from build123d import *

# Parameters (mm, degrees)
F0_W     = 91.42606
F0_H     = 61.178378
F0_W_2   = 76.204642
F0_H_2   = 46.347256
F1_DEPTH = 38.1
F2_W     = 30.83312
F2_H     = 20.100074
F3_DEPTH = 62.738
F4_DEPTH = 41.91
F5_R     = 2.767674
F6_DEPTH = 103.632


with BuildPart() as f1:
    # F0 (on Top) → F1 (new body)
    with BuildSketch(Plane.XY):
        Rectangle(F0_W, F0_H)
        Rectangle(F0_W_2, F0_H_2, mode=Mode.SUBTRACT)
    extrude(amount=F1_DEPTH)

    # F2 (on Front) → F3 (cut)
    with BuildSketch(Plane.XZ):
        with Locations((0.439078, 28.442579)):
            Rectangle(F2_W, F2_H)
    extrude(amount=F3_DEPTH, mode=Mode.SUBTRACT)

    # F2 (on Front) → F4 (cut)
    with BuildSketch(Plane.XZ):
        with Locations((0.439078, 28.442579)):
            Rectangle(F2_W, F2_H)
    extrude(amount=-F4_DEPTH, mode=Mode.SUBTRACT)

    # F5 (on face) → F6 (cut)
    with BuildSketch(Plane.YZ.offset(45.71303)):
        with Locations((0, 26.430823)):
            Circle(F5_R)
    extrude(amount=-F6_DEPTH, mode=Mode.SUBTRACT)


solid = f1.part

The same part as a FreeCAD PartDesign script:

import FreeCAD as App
import Part
import Sketcher
from FreeCAD import Vector
Q = App.Units.Quantity

doc = App.newDocument("Part")
body = doc.addObject("PartDesign::Body", "Body")

sketch1 = body.newObject("Sketcher::SketchObject", "Sketch")
sketch1.AttachmentSupport = (doc.getObject("XY_Plane"), [""])
sketch1.MapMode = "FlatFace"
sketch1.addGeometry([
    Part.LineSegment(Vector(-45.71303, 30.589189, 0), Vector(-45.71303, -30.589189, 0)),
    Part.LineSegment(Vector(-45.71303, -30.589189, 0), Vector(45.71303, -30.589189, 0)),
    Part.LineSegment(Vector(45.71303, -30.589189, 0), Vector(45.71303, 30.589189, 0)),
    Part.LineSegment(Vector(45.71303, 30.589189, 0), Vector(-45.71303, 30.589189, 0)),
    Part.LineSegment(Vector(38.102321, -23.173628, 0), Vector(-38.102321, -23.173628, 0)),
    Part.LineSegment(Vector(-38.102321, -23.173628, 0), Vector(-38.102321, 23.173628, 0)),
    Part.LineSegment(Vector(-38.102321, 23.173628, 0), Vector(38.102321, 23.173628, 0)),
    Part.LineSegment(Vector(38.102321, 23.173628, 0), Vector(38.102321, -23.173628, 0)),
], False)
sketch1.addConstraint([
    Sketcher.Constraint("Coincident", 0, 2, 1, 1),
    Sketcher.Constraint("Coincident", 1, 2, 2, 1),
    Sketcher.Constraint("Coincident", 2, 2, 3, 1),
    Sketcher.Constraint("Coincident", 3, 2, 0, 1),
    Sketcher.Constraint("Coincident", 4, 2, 5, 1),
    Sketcher.Constraint("Coincident", 5, 2, 6, 1),
    Sketcher.Constraint("Coincident", 6, 2, 7, 1),
    Sketcher.Constraint("Coincident", 7, 2, 4, 1),
    Sketcher.Constraint("Vertical", 0),
    Sketcher.Constraint("Horizontal", 1),
    Sketcher.Constraint("Vertical", 2),
    Sketcher.Constraint("Horizontal", 3),
    Sketcher.Constraint("Horizontal", 4),
    Sketcher.Constraint("Vertical", 5),
    Sketcher.Constraint("Horizontal", 6),
    Sketcher.Constraint("Vertical", 7),
    Sketcher.Constraint("Symmetric", 0, 2, 2, 2, -1, 1),
    Sketcher.Constraint("Symmetric", 4, 2, 6, 2, -1, 1),
    Sketcher.Constraint("DistanceX", 1, 1, 1, 2, 91.42606),
    Sketcher.Constraint("DistanceY", 0, 2, 0, 1, 61.178378),
    Sketcher.Constraint("DistanceX", 4, 2, 4, 1, 76.204642),
    Sketcher.Constraint("DistanceY", 5, 1, 5, 2, 46.347256),
])
pad1 = body.newObject("PartDesign::Pad", "Pad")
pad1.Profile = sketch1
pad1.Length = Q("1.5 in")

sketch2 = body.newObject("Sketcher::SketchObject", "Sketch001")
sketch2.AttachmentSupport = (doc.getObject("XZ_Plane"), [""])
sketch2.MapMode = "FlatFace"
sketch2.addGeometry([
    Part.LineSegment(Vector(-14.977482, 38.492616, 0), Vector(-14.977482, 18.392542, 0)),
    Part.LineSegment(Vector(-14.977482, 18.392542, 0), Vector(15.855638, 18.392542, 0)),
    Part.LineSegment(Vector(15.855638, 18.392542, 0), Vector(15.855638, 38.492616, 0)),
    Part.LineSegment(Vector(15.855638, 38.492616, 0), Vector(-14.977482, 38.492616, 0)),
], False)
sketch2.addConstraint([
    Sketcher.Constraint("Coincident", 0, 2, 1, 1),
    Sketcher.Constraint("Coincident", 1, 2, 2, 1),
    Sketcher.Constraint("Coincident", 2, 2, 3, 1),
    Sketcher.Constraint("Coincident", 3, 2, 0, 1),
    Sketcher.Constraint("Vertical", 0),
    Sketcher.Constraint("Horizontal", 1),
    Sketcher.Constraint("Vertical", 2),
    Sketcher.Constraint("Horizontal", 3),
    Sketcher.Constraint("DistanceX", 1, 1, 1, 2, 30.83312),
    Sketcher.Constraint("DistanceY", 0, 2, 0, 1, 20.100074),
    Sketcher.Constraint("DistanceY", -1, 1, 0, 2, 18.392542),
    Sketcher.Constraint("DistanceX", -1, 1, 1, 2, 15.855638),
])
pocket1 = body.newObject("PartDesign::Pocket", "Pocket")
pocket1.Profile = sketch2
pocket1.Length = Q("2.47 in")
pocket1.Reversed = True

sketch3 = body.newObject("Sketcher::SketchObject", "Sketch002")
sketch3.AttachmentSupport = (doc.getObject("XZ_Plane"), [""])
sketch3.MapMode = "FlatFace"
sketch3.addGeometry([
    Part.LineSegment(Vector(-14.977482, 38.492616, 0), Vector(-14.977482, 18.392542, 0)),
    Part.LineSegment(Vector(-14.977482, 18.392542, 0), Vector(15.855638, 18.392542, 0)),
    Part.LineSegment(Vector(15.855638, 18.392542, 0), Vector(15.855638, 38.492616, 0)),
    Part.LineSegment(Vector(15.855638, 38.492616, 0), Vector(-14.977482, 38.492616, 0)),
], False)
sketch3.addConstraint([
    Sketcher.Constraint("Coincident", 0, 2, 1, 1),
    Sketcher.Constraint("Coincident", 1, 2, 2, 1),
    Sketcher.Constraint("Coincident", 2, 2, 3, 1),
    Sketcher.Constraint("Coincident", 3, 2, 0, 1),
    Sketcher.Constraint("Vertical", 0),
    Sketcher.Constraint("Horizontal", 1),
    Sketcher.Constraint("Vertical", 2),
    Sketcher.Constraint("Horizontal", 3),
    Sketcher.Constraint("DistanceX", 1, 1, 1, 2, 30.83312),
    Sketcher.Constraint("DistanceY", 0, 2, 0, 1, 20.100074),
    Sketcher.Constraint("DistanceY", -1, 1, 0, 2, 18.392542),
    Sketcher.Constraint("DistanceX", -1, 1, 1, 2, 15.855638),
])
pocket2 = body.newObject("PartDesign::Pocket", "Pocket001")
pocket2.Profile = sketch3
pocket2.Length = Q("1.65 in")

sketch4 = body.newObject("Sketcher::SketchObject", "Sketch003")
sketch4.AttachmentSupport = (doc.getObject("YZ_Plane"), [""])
sketch4.MapMode = "FlatFace"
sketch4.AttachmentOffset = App.Placement(Vector(0, 0, 45.71303), App.Rotation())
sketch4.addGeometry(Part.Circle(Vector(0, 26.430823, 0), Vector(0, 0, 1), 2.767674), False)
sketch4.addConstraint([
    Sketcher.Constraint("PointOnObject", 0, 3, -2),
    Sketcher.Constraint("Diameter", 0, 5.535348),
    Sketcher.Constraint("DistanceY", -1, 1, 0, 3, 26.430823),
])
pocket3 = body.newObject("PartDesign::Pocket", "Pocket002")
pocket3.Profile = sketch4
pocket3.Length = Q("4.08 in")

doc.recompute()
